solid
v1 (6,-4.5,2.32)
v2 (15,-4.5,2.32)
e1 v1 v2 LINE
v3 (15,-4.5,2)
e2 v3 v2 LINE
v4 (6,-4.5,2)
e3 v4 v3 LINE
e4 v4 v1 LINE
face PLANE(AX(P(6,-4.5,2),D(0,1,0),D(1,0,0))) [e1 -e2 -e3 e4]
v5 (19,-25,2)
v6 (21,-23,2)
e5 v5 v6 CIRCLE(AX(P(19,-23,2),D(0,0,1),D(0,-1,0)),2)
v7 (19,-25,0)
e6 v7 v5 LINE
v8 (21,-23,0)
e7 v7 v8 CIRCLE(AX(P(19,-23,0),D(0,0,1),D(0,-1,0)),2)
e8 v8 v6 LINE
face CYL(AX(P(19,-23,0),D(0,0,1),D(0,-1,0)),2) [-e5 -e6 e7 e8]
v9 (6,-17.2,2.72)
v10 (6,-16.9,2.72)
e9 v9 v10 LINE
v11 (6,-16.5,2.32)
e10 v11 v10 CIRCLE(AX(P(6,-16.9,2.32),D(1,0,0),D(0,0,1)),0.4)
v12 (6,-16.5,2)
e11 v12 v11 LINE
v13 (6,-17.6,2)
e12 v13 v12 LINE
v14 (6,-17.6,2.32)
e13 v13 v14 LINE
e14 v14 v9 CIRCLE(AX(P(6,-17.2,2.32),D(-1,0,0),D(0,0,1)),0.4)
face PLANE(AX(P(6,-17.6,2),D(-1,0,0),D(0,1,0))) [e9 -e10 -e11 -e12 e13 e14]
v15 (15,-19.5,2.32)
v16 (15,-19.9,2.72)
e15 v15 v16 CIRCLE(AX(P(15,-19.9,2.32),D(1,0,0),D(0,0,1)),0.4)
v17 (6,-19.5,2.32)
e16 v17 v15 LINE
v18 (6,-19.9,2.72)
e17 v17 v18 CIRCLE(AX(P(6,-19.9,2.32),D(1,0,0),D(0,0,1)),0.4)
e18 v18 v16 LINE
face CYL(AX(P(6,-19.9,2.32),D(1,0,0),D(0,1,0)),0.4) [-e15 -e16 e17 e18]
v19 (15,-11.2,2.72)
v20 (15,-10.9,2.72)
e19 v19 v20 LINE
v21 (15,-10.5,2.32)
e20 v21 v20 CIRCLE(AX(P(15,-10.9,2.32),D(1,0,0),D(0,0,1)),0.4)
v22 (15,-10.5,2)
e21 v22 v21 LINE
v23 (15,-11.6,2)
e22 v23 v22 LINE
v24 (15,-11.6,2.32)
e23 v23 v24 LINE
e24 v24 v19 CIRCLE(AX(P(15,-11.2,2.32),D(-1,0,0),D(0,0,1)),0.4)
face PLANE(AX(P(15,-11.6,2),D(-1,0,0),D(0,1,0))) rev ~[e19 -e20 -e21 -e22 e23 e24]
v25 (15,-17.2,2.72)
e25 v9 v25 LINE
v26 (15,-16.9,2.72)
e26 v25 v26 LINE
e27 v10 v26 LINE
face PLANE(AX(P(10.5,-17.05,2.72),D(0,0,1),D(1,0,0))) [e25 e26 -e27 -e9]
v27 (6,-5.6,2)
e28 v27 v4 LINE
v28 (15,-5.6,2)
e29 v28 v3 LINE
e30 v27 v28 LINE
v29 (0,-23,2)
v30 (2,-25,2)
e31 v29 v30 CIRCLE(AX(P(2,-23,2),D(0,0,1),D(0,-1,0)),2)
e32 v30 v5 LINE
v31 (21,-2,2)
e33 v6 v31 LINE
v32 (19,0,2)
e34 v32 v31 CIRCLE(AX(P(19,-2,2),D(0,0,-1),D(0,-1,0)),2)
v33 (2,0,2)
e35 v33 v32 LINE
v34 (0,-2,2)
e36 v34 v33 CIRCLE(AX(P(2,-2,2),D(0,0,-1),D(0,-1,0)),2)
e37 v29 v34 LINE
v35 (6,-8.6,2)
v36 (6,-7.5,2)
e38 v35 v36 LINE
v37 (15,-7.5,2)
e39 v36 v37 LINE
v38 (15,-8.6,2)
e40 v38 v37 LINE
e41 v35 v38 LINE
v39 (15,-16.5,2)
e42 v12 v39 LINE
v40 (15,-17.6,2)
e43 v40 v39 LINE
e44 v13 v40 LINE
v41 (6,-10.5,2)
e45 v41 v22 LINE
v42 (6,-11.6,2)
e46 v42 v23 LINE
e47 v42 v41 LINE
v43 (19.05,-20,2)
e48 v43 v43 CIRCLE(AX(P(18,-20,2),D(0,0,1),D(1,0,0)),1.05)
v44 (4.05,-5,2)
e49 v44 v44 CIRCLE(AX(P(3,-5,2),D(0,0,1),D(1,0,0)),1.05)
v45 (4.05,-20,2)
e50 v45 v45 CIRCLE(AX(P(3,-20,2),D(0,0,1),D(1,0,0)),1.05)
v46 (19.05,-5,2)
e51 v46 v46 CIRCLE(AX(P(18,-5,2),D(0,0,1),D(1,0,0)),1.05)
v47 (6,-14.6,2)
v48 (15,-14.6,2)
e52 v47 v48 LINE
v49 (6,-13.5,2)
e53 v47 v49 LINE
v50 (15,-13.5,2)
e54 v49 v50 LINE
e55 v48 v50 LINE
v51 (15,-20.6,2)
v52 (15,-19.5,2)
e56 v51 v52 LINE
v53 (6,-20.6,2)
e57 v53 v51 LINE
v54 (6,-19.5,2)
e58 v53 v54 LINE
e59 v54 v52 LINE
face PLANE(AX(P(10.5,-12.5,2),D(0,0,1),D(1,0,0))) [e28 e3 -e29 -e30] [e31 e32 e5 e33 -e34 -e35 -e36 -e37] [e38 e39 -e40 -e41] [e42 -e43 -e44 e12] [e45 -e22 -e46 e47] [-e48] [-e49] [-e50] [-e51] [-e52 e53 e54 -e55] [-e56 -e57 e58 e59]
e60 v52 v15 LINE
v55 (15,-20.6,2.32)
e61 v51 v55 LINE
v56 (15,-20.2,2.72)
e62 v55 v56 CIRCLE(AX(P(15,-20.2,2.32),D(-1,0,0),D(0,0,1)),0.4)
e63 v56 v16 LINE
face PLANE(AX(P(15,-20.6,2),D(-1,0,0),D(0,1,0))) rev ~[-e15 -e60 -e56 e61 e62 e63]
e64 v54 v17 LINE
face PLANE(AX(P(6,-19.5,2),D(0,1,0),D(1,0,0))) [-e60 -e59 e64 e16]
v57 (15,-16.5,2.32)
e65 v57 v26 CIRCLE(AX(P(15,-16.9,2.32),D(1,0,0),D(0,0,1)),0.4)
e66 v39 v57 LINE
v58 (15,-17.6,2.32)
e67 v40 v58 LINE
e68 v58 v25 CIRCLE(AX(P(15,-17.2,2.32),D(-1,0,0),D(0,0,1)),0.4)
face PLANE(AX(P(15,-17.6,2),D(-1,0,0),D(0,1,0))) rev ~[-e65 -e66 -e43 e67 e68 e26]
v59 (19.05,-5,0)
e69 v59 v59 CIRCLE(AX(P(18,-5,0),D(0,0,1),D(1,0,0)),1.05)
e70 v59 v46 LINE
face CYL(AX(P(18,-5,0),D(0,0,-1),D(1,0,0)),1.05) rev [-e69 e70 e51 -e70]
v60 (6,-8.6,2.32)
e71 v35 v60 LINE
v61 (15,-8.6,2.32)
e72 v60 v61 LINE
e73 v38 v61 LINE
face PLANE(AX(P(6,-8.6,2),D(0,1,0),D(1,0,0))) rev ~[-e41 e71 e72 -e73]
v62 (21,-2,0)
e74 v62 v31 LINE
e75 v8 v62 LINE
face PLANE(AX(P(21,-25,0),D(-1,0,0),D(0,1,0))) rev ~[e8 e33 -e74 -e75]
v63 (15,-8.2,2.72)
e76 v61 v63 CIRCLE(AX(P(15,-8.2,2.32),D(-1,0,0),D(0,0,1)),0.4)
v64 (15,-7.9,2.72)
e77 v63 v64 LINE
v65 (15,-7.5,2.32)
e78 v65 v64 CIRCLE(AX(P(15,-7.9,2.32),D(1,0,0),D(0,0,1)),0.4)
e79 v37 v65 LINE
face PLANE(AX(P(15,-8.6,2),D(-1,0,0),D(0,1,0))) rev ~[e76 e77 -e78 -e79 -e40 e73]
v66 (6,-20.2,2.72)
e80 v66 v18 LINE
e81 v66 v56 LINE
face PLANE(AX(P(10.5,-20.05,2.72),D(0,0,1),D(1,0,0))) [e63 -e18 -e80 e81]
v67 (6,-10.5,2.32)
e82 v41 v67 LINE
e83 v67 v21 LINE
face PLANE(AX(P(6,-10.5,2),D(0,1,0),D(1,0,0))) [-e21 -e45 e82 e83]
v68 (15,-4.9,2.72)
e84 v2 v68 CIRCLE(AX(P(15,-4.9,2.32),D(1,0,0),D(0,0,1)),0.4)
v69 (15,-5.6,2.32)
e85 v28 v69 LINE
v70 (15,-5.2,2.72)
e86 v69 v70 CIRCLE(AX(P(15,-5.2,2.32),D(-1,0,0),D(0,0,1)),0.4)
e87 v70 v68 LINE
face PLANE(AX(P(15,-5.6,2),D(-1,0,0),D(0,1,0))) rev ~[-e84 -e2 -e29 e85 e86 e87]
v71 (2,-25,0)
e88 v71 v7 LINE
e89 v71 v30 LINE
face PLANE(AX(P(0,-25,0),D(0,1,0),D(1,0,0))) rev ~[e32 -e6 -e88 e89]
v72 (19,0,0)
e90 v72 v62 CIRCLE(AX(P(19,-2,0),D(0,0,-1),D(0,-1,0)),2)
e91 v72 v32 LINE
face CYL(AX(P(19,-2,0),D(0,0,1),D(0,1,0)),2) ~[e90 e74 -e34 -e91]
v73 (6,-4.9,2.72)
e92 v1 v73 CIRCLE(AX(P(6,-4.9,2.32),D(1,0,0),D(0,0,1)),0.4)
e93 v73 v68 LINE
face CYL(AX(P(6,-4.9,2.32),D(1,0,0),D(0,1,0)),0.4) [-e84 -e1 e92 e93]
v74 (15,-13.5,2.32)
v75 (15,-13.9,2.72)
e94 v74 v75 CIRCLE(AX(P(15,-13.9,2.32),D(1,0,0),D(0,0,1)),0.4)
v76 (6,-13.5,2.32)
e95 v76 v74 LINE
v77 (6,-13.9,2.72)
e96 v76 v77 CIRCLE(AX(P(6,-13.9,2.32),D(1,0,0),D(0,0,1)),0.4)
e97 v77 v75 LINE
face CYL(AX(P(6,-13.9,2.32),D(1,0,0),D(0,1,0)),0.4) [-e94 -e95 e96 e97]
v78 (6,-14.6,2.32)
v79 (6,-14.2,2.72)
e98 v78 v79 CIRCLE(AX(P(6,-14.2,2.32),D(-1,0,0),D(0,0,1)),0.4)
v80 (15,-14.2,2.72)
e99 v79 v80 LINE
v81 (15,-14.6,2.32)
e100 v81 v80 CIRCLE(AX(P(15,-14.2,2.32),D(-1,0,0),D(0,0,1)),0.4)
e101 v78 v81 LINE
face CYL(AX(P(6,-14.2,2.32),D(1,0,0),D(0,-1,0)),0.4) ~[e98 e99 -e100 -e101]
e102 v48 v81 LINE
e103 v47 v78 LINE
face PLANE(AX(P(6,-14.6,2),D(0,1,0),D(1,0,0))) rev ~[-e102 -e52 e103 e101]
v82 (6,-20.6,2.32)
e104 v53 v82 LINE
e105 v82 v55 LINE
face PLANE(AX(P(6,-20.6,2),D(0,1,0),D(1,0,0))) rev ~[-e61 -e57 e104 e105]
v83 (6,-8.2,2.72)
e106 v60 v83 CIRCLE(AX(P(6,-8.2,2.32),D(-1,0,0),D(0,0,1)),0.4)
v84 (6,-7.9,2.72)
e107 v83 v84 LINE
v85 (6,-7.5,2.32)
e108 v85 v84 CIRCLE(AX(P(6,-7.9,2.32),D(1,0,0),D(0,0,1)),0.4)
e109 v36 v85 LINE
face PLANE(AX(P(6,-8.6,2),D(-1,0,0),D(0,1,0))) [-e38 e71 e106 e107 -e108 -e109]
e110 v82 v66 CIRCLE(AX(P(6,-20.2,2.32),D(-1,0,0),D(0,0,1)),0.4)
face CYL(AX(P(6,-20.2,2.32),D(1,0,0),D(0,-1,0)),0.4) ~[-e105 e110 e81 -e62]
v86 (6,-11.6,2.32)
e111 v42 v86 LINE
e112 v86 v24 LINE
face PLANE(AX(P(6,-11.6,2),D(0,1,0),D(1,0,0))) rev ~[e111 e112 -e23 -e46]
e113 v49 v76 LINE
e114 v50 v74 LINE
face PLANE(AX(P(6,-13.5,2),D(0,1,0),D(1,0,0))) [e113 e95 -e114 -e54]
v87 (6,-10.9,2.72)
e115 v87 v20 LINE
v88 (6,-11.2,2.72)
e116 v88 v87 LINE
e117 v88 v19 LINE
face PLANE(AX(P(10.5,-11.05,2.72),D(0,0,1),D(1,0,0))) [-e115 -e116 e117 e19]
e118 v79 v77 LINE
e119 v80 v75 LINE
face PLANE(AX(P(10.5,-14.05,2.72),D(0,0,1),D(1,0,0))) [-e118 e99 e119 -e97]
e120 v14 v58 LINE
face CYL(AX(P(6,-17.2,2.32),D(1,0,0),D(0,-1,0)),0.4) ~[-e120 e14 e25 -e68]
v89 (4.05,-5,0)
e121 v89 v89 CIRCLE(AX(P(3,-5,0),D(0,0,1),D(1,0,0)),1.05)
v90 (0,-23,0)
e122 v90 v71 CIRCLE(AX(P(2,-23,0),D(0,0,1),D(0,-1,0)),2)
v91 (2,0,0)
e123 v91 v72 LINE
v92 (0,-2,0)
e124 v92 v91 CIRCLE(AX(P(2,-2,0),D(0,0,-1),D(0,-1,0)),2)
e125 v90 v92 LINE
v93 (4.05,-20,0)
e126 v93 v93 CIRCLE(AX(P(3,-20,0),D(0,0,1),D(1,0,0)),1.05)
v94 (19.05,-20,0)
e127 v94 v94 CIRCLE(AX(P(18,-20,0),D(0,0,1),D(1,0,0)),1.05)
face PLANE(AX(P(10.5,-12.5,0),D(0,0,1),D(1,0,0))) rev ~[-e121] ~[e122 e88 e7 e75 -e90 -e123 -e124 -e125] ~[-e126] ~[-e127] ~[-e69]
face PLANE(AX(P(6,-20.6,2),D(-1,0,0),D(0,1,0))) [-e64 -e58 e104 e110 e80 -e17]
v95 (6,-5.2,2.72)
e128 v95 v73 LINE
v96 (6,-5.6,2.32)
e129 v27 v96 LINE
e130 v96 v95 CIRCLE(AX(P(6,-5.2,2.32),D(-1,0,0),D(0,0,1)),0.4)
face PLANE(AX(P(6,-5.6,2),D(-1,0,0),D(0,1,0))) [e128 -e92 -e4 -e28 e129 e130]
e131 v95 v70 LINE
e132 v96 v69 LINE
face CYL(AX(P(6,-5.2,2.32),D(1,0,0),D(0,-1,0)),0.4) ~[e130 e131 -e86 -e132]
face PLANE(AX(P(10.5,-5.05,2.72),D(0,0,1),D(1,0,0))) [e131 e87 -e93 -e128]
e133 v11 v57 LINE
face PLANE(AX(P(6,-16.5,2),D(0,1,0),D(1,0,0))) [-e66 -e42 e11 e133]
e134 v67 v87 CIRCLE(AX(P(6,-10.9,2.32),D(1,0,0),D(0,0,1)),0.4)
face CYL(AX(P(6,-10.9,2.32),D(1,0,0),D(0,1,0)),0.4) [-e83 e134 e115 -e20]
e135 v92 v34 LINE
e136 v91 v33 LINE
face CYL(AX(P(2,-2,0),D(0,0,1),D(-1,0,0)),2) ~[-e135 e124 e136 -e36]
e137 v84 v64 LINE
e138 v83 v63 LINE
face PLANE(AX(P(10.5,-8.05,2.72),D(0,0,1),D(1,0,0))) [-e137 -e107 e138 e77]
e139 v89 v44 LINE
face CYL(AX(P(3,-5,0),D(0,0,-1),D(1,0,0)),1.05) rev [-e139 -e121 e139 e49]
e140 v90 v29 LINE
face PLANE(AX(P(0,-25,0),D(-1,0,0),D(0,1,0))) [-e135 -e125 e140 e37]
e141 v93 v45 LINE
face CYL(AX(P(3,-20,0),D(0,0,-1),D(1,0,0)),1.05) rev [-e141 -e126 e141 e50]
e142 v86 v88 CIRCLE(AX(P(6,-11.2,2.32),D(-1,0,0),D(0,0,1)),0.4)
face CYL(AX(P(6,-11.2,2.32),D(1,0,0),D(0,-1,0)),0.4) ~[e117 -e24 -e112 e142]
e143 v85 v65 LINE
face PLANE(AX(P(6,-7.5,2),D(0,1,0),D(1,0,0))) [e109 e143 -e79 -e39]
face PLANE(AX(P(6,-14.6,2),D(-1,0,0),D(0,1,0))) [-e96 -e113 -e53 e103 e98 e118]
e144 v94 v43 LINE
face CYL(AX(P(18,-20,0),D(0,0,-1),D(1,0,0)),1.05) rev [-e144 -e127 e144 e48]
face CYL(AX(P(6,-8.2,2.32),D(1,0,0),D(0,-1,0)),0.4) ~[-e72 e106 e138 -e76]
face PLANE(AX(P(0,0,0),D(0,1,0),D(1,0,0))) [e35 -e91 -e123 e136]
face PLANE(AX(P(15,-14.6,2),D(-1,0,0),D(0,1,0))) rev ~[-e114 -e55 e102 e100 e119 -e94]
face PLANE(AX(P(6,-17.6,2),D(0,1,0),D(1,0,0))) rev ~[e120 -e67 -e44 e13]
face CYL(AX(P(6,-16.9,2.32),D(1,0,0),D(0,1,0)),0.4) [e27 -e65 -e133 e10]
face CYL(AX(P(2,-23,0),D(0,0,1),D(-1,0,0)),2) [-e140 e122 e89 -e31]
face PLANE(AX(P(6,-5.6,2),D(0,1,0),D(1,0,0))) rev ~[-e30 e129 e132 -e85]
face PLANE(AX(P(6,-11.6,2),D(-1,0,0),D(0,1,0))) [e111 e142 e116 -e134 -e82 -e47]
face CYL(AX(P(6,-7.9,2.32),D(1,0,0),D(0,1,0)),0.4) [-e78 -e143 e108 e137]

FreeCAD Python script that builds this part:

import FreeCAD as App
import Part
import Sketcher

V = App.Vector


def edges_at(feature, points):
    """Names of the edges that pass closest to the given points."""
    edges = feature.Shape.Edges
    near = lambda p: min(range(len(edges)), key=lambda i: edges[i].distToShape(Part.Vertex(*p))[0])
    return sorted({f"Edge{near(p) + 1}" for p in points})

doc = App.newDocument("Part")
params = doc.addObject("Spreadsheet::Sheet", "Params")
for row, (alias, value) in enumerate([
    ("sketch1_diameter", "2.1 mm"),
    ("sketch1_width", "21 mm"),
    ("sketch1_height", "25 mm"),
    ("pad1_length", "2 mm"),
    ("sketch2_width", "9 mm"),
    ("sketch2_height", "1.1 mm"),
    ("pad2_length", "0.72 mm"),
    ("fillet_radius", "2 mm"),
    ("fillet2_radius", "0.4 mm"),
], start=1):
    params.set(f"A{row}", alias)
    params.set(f"B{row}", "=" + value)
    params.setAlias(f"B{row}", alias)

body = doc.addObject("PartDesign::Body", "Body")

sketch1 = body.newObject("Sketcher::SketchObject", "Sketch")
sketch1.AttachmentSupport = (doc.getObject("XY_Plane"), [""])
sketch1.MapMode = "FlatFace"
sketch1.addGeometry([
    Part.LineSegment(V(0, 0, 0), V(0, -25, 0)),
    Part.LineSegment(V(0, -25, 0), V(21, -25, 0)),
    Part.LineSegment(V(21, -25, 0), V(21, 0, 0)),
    Part.LineSegment(V(21, 0, 0), V(0, 0, 0)),
    Part.Circle(V(3, -20, 0), V(0, 0, 1), 1.1),
    Part.Circle(V(18, -20, 0), V(0, 0, 1), 1.1),
    Part.Circle(V(3, -5, 0), V(0, 0, 1), 1.1),
    Part.Circle(V(18, -5, 0), V(0, 0, 1), 1.1),
], False)
sketch1.addConstraint([
    Sketcher.Constraint("Coincident", 0, 2, 1, 1),
    Sketcher.Constraint("Coincident", 1, 2, 2, 1),
    Sketcher.Constraint("Coincident", 2, 2, 3, 1),
    Sketcher.Constraint("Coincident", 3, 2, 0, 1),
    Sketcher.Constraint("Vertical", 0),
    Sketcher.Constraint("Horizontal", 1),
    Sketcher.Constraint("Vertical", 2),
    Sketcher.Constraint("Horizontal", 3),
    Sketcher.Constraint("Coincident", 3, 2, -1, 1),
    Sketcher.Constraint("Equal", 4, 5),
    Sketcher.Constraint("Equal", 5, 6),
    Sketcher.Constraint("Equal", 6, 7),
    Sketcher.Constraint("Horizontal", 4, 3, 5, 3),
    Sketcher.Constraint("Horizontal", 6, 3, 7, 3),
    Sketcher.Constraint("Vertical", 4, 3, 6, 3),
    Sketcher.Constraint("Vertical", 5, 3, 7, 3),
    Sketcher.Constraint("Diameter", 4, 2.1),
    Sketcher.Constraint("DistanceX", 1, 1, 1, 2, 21.0),
    Sketcher.Constraint("DistanceY", 0, 2, 0, 1, 25.0),
    Sketcher.Constraint("DistanceX", -1, 1, 4, 3, 3.0),
    Sketcher.Constraint("DistanceY", 4, 3, -1, 1, 20.0),
    Sketcher.Constraint("DistanceX", -1, 1, 5, 3, 18.0),
    Sketcher.Constraint("DistanceY", 6, 3, -1, 1, 5.0),
])
sketch1.setExpression("Constraints[16]", "Params.sketch1_diameter")
sketch1.setExpression("Constraints[17]", "Params.sketch1_width")
sketch1.setExpression("Constraints[18]", "Params.sketch1_height")
pad1 = body.newObject("PartDesign::Pad", "Pad")
pad1.Profile = sketch1
pad1.setExpression("Length", "Params.pad1_length")

sketch2 = body.newObject("Sketcher::SketchObject", "Sketch001")
sketch2.AttachmentSupport = (doc.getObject("XY_Plane"), [""])
sketch2.MapMode = "FlatFace"
sketch2.AttachmentOffset = App.Placement(V(0, 0, 2), App.Rotation())
sketch2.addGeometry([
    Part.LineSegment(V(6, -4.5, 0), V(6, -5.6, 0)),
    Part.LineSegment(V(6, -5.6, 0), V(15, -5.6, 0)),
    Part.LineSegment(V(15, -5.6, 0), V(15, -4.5, 0)),
    Part.LineSegment(V(15, -4.5, 0), V(6, -4.5, 0)),
    Part.LineSegment(V(6, -7.5, 0), V(6, -8.6, 0)),
    Part.LineSegment(V(6, -8.6, 0), V(15, -8.6, 0)),
    Part.LineSegment(V(15, -8.6, 0), V(15, -7.5, 0)),
    Part.LineSegment(V(15, -7.5, 0), V(6, -7.5, 0)),
    Part.LineSegment(V(6, -10.5, 0), V(6, -11.6, 0)),
    Part.LineSegment(V(6, -11.6, 0), V(15, -11.6, 0)),
    Part.LineSegment(V(15, -11.6, 0), V(15, -10.5, 0)),
    Part.LineSegment(V(15, -10.5, 0), V(6, -10.5, 0)),
    Part.LineSegment(V(6, -13.5, 0), V(6, -14.6, 0)),
    Part.LineSegment(V(6, -14.6, 0), V(15, -14.6, 0)),
    Part.LineSegment(V(15, -14.6, 0), V(15, -13.5, 0)),
    Part.LineSegment(V(15, -13.5, 0), V(6, -13.5, 0)),
    Part.LineSegment(V(6, -16.5, 0), V(6, -17.6, 0)),
    Part.LineSegment(V(6, -17.6, 0), V(15, -17.6, 0)),
    Part.LineSegment(V(15, -17.6, 0), V(15, -16.5, 0)),
    Part.LineSegment(V(15, -16.5, 0), V(6, -16.5, 0)),
    Part.LineSegment(V(6, -19.5, 0), V(6, -20.6, 0)),
    Part.LineSegment(V(6, -20.6, 0), V(15, -20.6, 0)),
    Part.LineSegment(V(15, -20.6, 0), V(15, -19.5, 0)),
    Part.LineSegment(V(15, -19.5, 0), V(6, -19.5, 0)),
], False)
sketch2.addConstraint([
    Sketcher.Constraint("Coincident", 0, 2, 1, 1),
    Sketcher.Constraint("Coincident", 1, 2, 2, 1),
    Sketcher.Constraint("Coincident", 2, 2, 3, 1),
    Sketcher.Constraint("Coincident", 3, 2, 0, 1),
    Sketcher.Constraint("Coincident", 4, 2, 5, 1),
    Sketcher.Constraint("Coincident", 5, 2, 6, 1),
    Sketcher.Constraint("Coincident", 6, 2, 7, 1),
    Sketcher.Constraint("Coincident", 7, 2, 4, 1),
    Sketcher.Constraint("Coincident", 8, 2, 9, 1),
    Sketcher.Constraint("Coincident", 9, 2, 10, 1),
    Sketcher.Constraint("Coincident", 10, 2, 11, 1),
    Sketcher.Constraint("Coincident", 11, 2, 8, 1),
    Sketcher.Constraint("Coincident", 12, 2, 13, 1),
    Sketcher.Constraint("Coincident", 13, 2, 14, 1),
    Sketcher.Constraint("Coincident", 14, 2, 15, 1),
    Sketcher.Constraint("Coincident", 15, 2, 12, 1),
    Sketcher.Constraint("Coincident", 16, 2, 17, 1),
    Sketcher.Constraint("Coincident", 17, 2, 18, 1),
    Sketcher.Constraint("Coincident", 18, 2, 19, 1),
    Sketcher.Constraint("Coincident", 19, 2, 16, 1),
    Sketcher.Constraint("Coincident", 20, 2, 21, 1),
    Sketcher.Constraint("Coincident", 21, 2, 22, 1),
    Sketcher.Constraint("Coincident", 22, 2, 23, 1),
    Sketcher.Constraint("Coincident", 23, 2, 20, 1),
    Sketcher.Constraint("Vertical", 0),
    Sketcher.Constraint("Horizontal", 1),
    Sketcher.Constraint("Vertical", 2),
    Sketcher.Constraint("Horizontal", 3),
    Sketcher.Constraint("Vertical", 4),
    Sketcher.Constraint("Horizontal", 5),
    Sketcher.Constraint("Vertical", 6),
    Sketcher.Constraint("Horizontal", 7),
    Sketcher.Constraint("Vertical", 8),
    Sketcher.Constraint("Horizontal", 9),
    Sketcher.Constraint("Vertical", 10),
    Sketcher.Constraint("Horizontal", 11),
    Sketcher.Constraint("Vertical", 12),
    Sketcher.Constraint("Horizontal", 13),
    Sketcher.Constraint("Vertical", 14),
    Sketcher.Constraint("Horizontal", 15),
    Sketcher.Constraint("Vertical", 16),
    Sketcher.Constraint("Horizontal", 17),
    Sketcher.Constraint("Vertical", 18),
    Sketcher.Constraint("Horizontal", 19),
    Sketcher.Constraint("Vertical", 20),
    Sketcher.Constraint("Horizontal", 21),
    Sketcher.Constraint("Vertical", 22),
    Sketcher.Constraint("Horizontal", 23),
    Sketcher.Constraint("Vertical", 3, 2, 4, 2),
    Sketcher.Constraint("Vertical", 2, 2, 5, 2),
    Sketcher.Constraint("Vertical", 7, 2, 8, 2),
    Sketcher.Constraint("Vertical", 6, 2, 9, 2),
    Sketcher.Constraint("Vertical", 11, 2, 12, 2),
    Sketcher.Constraint("Vertical", 10, 2, 13, 2),
    Sketcher.Constraint("Vertical", 15, 2, 16, 2),
    Sketcher.Constraint("Vertical", 14, 2, 17, 2),
    Sketcher.Constraint("Vertical", 19, 2, 20, 2),
    Sketcher.Constraint("Vertical", 18, 2, 21, 2),
    Sketcher.Constraint("Equal", 2, 4),
    Sketcher.Constraint("Equal", 6, 8),
    Sketcher.Constraint("Equal", 10, 12),
    Sketcher.Constraint("Equal", 14, 16),
    Sketcher.Constraint("Equal", 18, 20),
    Sketcher.Constraint("DistanceX", 1, 1, 1, 2, 9.0),
    Sketcher.Constraint("DistanceY", 0, 2, 0, 1, 1.1),
    Sketcher.Constraint("DistanceX", -1, 1, 0, 2, 6.0),
    Sketcher.Constraint("DistanceY", 4, 2, 0, 2, 3.0),
    Sketcher.Constraint("DistanceY", 8, 2, 4, 2, 3.0),
    Sketcher.Constraint("DistanceY", 12, 2, 8, 2, 3.0),
    Sketcher.Constraint("DistanceY", 16, 2, 12, 2, 3.0),
    Sketcher.Constraint("DistanceY", 20, 2, 16, 2, 3.0),
    Sketcher.Constraint("DistanceY", 0, 2, -1, 1, 5.6),
])
sketch2.setExpression("Constraints[63]", "Params.sketch2_width")
sketch2.setExpression("Constraints[64]", "Params.sketch2_height")
pad2 = body.newObject("PartDesign::Pad", "Pad001")
pad2.Profile = sketch2
pad2.setExpression("Length", "Params.pad2_length")
doc.recompute()

fillet = body.newObject("PartDesign::Fillet", "Fillet")
fillet.Base = (pad2, edges_at(pad2, [
    (0, 0, 1),
    (21, 0, 1),
    (21, -25, 1),
    (0, -25, 1),
]))
fillet.setExpression("Radius", "Params.fillet_radius")
doc.recompute()

fillet2 = body.newObject("PartDesign::Fillet", "Fillet001")
fillet2.Base = (fillet, edges_at(fillet, [
    (10.5, -5.6, 2.72),
    (10.5, -4.5, 2.72),
    (10.5, -7.5, 2.72),
    (10.5, -8.6, 2.72),
    (10.5, -10.5, 2.72),
    (10.5, -11.6, 2.72),
    (10.5, -13.5, 2.72),
    (10.5, -14.6, 2.72),
    (10.5, -16.5, 2.72),
    (10.5, -17.6, 2.72),
    (10.5, -19.5, 2.72),
    (10.5, -20.6, 2.72),
]))
fillet2.setExpression("Radius", "Params.fillet2_radius")

doc.recompute()
